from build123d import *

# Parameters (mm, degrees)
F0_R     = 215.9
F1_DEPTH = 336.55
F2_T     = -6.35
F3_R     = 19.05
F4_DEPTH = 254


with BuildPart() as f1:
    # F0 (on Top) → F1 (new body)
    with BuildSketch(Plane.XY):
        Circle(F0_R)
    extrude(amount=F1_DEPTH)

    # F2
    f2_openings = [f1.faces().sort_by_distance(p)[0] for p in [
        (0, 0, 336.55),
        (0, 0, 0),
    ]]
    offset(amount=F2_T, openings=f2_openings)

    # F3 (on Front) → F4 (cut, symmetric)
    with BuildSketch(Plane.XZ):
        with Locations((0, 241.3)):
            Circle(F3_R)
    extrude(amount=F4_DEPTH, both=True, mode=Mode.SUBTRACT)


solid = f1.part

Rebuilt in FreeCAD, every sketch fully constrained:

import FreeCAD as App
import Part
import Sketcher
Q = App.Units.Quantity


def faces_at(feature, points):
    """Names of the faces that lie closest to the given points."""
    faces = feature.Shape.Faces
    near = lambda p: min(range(len(faces)), key=lambda i: faces[i].distToShape(Part.Vertex(*p))[0])
    return sorted({f"Face{near(p) + 1}" for p in points})

doc = App.newDocument("Part")
params = doc.addObject("Spreadsheet::Sheet", "Params")
for row, (alias, value) in enumerate([
    ("sketch1_diameter", "17 in"),
    ("pad1_length", "13.25 in"),
    ("thickness_wall", "0.25 in"),
    ("sketch2_diameter", "1.5 in"),
    ("pocket1_length", "20 in"),
], start=1):
    params.set(f"A{row}", alias)
    params.set(f"B{row}", "=" + value)
    params.setAlias(f"B{row}", alias)

body = doc.addObject("PartDesign::Body", "Body")

sketch1 = body.newObject("Sketcher::SketchObject", "Sketch")
sketch1.AttachmentSupport = (doc.getObject("XY_Plane"), [""])
sketch1.MapMode = "FlatFace"
sketch1.addGeometry(Part.Circle(App.Vector(0, 0, 0), App.Vector(0, 0, 1), 215.9), False)
sketch1.addConstraint([
    Sketcher.Constraint("Coincident", 0, 3, -1, 1),
    Sketcher.Constraint("Diameter", 0, Q("17 in")),
])
sketch1.setExpression("Constraints[1]", "Params.sketch1_diameter")
pad1 = body.newObject("PartDesign::Pad", "Pad")
pad1.Profile = sketch1
pad1.setExpression("Length", "Params.pad1_length")
doc.recompute()

thickness = body.newObject("PartDesign::Thickness", "Thickness")
thickness.Base = (pad1, faces_at(pad1, [(0, 0, 336.55), (0, 0, 0)]))
thickness.setExpression("Value", "Params.thickness_wall")
thickness.Reversed = True
thickness.Join = "Arc"

sketch2 = body.newObject("Sketcher::SketchObject", "Sketch001")
sketch2.AttachmentSupport = (doc.getObject("XZ_Plane"), [""])
sketch2.MapMode = "FlatFace"
sketch2.addGeometry(Part.Circle(App.Vector(0, 241.3, 0), App.Vector(0, 0, 1), 19.05), False)
sketch2.addConstraint([
    Sketcher.Constraint("PointOnObject", 0, 3, -2),
    Sketcher.Constraint("Diameter", 0, Q("1.5 in")),
    Sketcher.Constraint("DistanceY", -1, 1, 0, 3, Q("9.5 in")),
])
sketch2.setExpression("Constraints[1]", "Params.sketch2_diameter")
pocket1 = body.newObject("PartDesign::Pocket", "Pocket")
pocket1.Profile = sketch2
pocket1.setExpression("Length", "Params.pocket1_length")
pocket1.Midplane = True

doc.recompute()
